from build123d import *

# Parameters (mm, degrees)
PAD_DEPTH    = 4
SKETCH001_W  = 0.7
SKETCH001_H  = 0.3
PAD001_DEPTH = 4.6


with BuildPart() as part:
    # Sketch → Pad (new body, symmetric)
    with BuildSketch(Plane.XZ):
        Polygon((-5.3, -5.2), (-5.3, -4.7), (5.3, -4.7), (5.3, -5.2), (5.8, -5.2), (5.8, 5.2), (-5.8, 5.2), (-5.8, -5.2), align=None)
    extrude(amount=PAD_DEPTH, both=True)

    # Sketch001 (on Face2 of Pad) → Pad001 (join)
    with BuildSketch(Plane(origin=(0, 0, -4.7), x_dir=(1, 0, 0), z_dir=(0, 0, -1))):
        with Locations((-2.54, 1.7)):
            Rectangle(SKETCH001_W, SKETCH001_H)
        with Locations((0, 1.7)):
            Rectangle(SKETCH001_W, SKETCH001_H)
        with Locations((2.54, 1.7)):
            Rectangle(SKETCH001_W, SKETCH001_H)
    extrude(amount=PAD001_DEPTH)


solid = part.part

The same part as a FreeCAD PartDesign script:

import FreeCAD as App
import Part
import Sketcher

V = App.Vector
Q = App.Units.Quantity

doc = App.newDocument("Part")
body = doc.addObject("PartDesign::Body", "Body")

# Sketch on XZ plane
sketch1 = body.newObject("Sketcher::SketchObject", "Sketch")
sketch1.AttachmentSupport = (doc.getObject("XZ_Plane"), [""])
sketch1.MapMode = "FlatFace"
sketch1.addGeometry(Part.LineSegment(V(-5.3, -5.2, 0), V(-5.3, -4.7, 0)), False)
sketch1.addGeometry(Part.LineSegment(V(-5.3, -4.7, 0), V(5.3, -4.7, 0)), False)
sketch1.addGeometry(Part.LineSegment(V(5.3, -4.7, 0), V(5.3, -5.2, 0)), False)
sketch1.addGeometry(Part.LineSegment(V(5.3, -5.2, 0), V(5.8, -5.2, 0)), False)
sketch1.addGeometry(Part.LineSegment(V(5.8, -5.2, 0), V(5.8, 5.2, 0)), False)
sketch1.addGeometry(Part.LineSegment(V(5.8, 5.2, 0), V(-5.8, 5.2, 0)), False)
sketch1.addGeometry(Part.LineSegment(V(-5.8, 5.2, 0), V(-5.8, -5.2, 0)), False)
sketch1.addGeometry(Part.LineSegment(V(-5.8, -5.2, 0), V(-5.3, -5.2, 0)), False)
sketch1.addConstraint(Sketcher.Constraint("Coincident", 0, 2, 1, 1))
sketch1.addConstraint(Sketcher.Constraint("Coincident", 1, 2, 2, 1))
sketch1.addConstraint(Sketcher.Constraint("Coincident", 2, 2, 3, 1))
sketch1.addConstraint(Sketcher.Constraint("Coincident", 3, 2, 4, 1))
sketch1.addConstraint(Sketcher.Constraint("Coincident", 4, 2, 5, 1))
sketch1.addConstraint(Sketcher.Constraint("Coincident", 5, 2, 6, 1))
sketch1.addConstraint(Sketcher.Constraint("Coincident", 6, 2, 7, 1))
sketch1.addConstraint(Sketcher.Constraint("Coincident", 7, 2, 0, 1))
sketch1.addConstraint(Sketcher.Constraint("Vertical", 0))
sketch1.addConstraint(Sketcher.Constraint("Horizontal", 1))
sketch1.addConstraint(Sketcher.Constraint("Vertical", 2))
sketch1.addConstraint(Sketcher.Constraint("Horizontal", 3))
sketch1.addConstraint(Sketcher.Constraint("Vertical", 4))
sketch1.addConstraint(Sketcher.Constraint("Horizontal", 5))
sketch1.addConstraint(Sketcher.Constraint("Vertical", 6))
sketch1.addConstraint(Sketcher.Constraint("Horizontal", 7))
sketch1.addConstraint(Sketcher.Constraint("Symmetric", 3, 2, 5, 2, -1, 1))
sketch1.addConstraint(Sketcher.Constraint("Symmetric", 2, 2, 7, 2, -2))
sketch1.addConstraint(Sketcher.Constraint("Equal", 7, 0))
sketch1.addConstraint(Sketcher.Constraint("DistanceX", 1, 1, 1, 2, Q("10.6 mm")))
sketch1.addConstraint(Sketcher.Constraint("DistanceX", 3, 1, 3, 2, Q("0.5 mm")))
sketch1.addConstraint(Sketcher.Constraint("DistanceY", 4, 1, 4, 2, Q("10.4 mm")))
pad1 = body.newObject("PartDesign::Pad", "Pad")
pad1.Profile = sketch1
pad1.Length = 8
pad1.Midplane = True

# Sketch on XY plane
sketch2 = body.newObject("Sketcher::SketchObject", "Sketch001")
sketch2.AttachmentSupport = (doc.getObject("XY_Plane"), [""])
sketch2.MapMode = "FlatFace"
sketch2.AttachmentOffset = App.Placement(V(0, 0, -4.7), App.Rotation())
sketch2.addGeometry(Part.LineSegment(V(-2.89, -1.85, 0), V(-2.89, -1.55, 0)), False)
sketch2.addGeometry(Part.LineSegment(V(-2.89, -1.55, 0), V(-2.19, -1.55, 0)), False)
sketch2.addGeometry(Part.LineSegment(V(-2.19, -1.55, 0), V(-2.19, -1.85, 0)), False)
sketch2.addGeometry(Part.LineSegment(V(-2.19, -1.85, 0), V(-2.89, -1.85, 0)), False)
sketch2.addGeometry(Part.LineSegment(V(-0.35, -1.85, 0), V(-0.35, -1.55, 0)), False)
sketch2.addGeometry(Part.LineSegment(V(-0.35, -1.55, 0), V(0.35, -1.55, 0)), False)
sketch2.addGeometry(Part.LineSegment(V(0.35, -1.55, 0), V(0.35, -1.85, 0)), False)
sketch2.addGeometry(Part.LineSegment(V(0.35, -1.85, 0), V(-0.35, -1.85, 0)), False)
sketch2.addGeometry(Part.LineSegment(V(2.19, -1.85, 0), V(2.19, -1.55, 0)), False)
sketch2.addGeometry(Part.LineSegment(V(2.19, -1.55, 0), V(2.89, -1.55, 0)), False)
sketch2.addGeometry(Part.LineSegment(V(2.89, -1.55, 0), V(2.89, -1.85, 0)), False)
sketch2.addGeometry(Part.LineSegment(V(2.89, -1.85, 0), V(2.19, -1.85, 0)), False)
sketch2.addConstraint(Sketcher.Constraint("Coincident", 0, 2, 1, 1))
sketch2.addConstraint(Sketcher.Constraint("Coincident", 1, 2, 2, 1))
sketch2.addConstraint(Sketcher.Constraint("Coincident", 2, 2, 3, 1))
sketch2.addConstraint(Sketcher.Constraint("Coincident", 3, 2, 0, 1))
sketch2.addConstraint(Sketcher.Constraint("Coincident", 4, 2, 5, 1))
sketch2.addConstraint(Sketcher.Constraint("Coincident", 5, 2, 6, 1))
sketch2.addConstraint(Sketcher.Constraint("Coincident", 6, 2, 7, 1))
sketch2.addConstraint(Sketcher.Constraint("Coincident", 7, 2, 4, 1))
sketch2.addConstraint(Sketcher.Constraint("Coincident", 8, 2, 9, 1))
sketch2.addConstraint(Sketcher.Constraint("Coincident", 9, 2, 10, 1))
sketch2.addConstraint(Sketcher.Constraint("Coincident", 10, 2, 11, 1))
sketch2.addConstraint(Sketcher.Constraint("Coincident", 11, 2, 8, 1))
sketch2.addConstraint(Sketcher.Constraint("Vertical", 0))
sketch2.addConstraint(Sketcher.Constraint("Horizontal", 1))
sketch2.addConstraint(Sketcher.Constraint("Vertical", 2))
sketch2.addConstraint(Sketcher.Constraint("Horizontal", 3))
sketch2.addConstraint(Sketcher.Constraint("Vertical", 4))
sketch2.addConstraint(Sketcher.Constraint("Horizontal", 5))
sketch2.addConstraint(Sketcher.Constraint("Vertical", 6))
sketch2.addConstraint(Sketcher.Constraint("Horizontal", 7))
sketch2.addConstraint(Sketcher.Constraint("Vertical", 8))
sketch2.addConstraint(Sketcher.Constraint("Horizontal", 9))
sketch2.addConstraint(Sketcher.Constraint("Vertical", 10))
sketch2.addConstraint(Sketcher.Constraint("Horizontal", 11))
sketch2.addConstraint(Sketcher.Constraint("Symmetric", 1, 2, 8, 2, -2))
sketch2.addConstraint(Sketcher.Constraint("Symmetric", 3, 2, 10, 2, -2))
sketch2.addConstraint(Sketcher.Constraint("Horizontal", 1, 2, 4, 2))
sketch2.addConstraint(Sketcher.Constraint("Horizontal", 3, 2, 6, 2))
sketch2.addConstraint(Sketcher.Constraint("Equal", 3, 5))
sketch2.addConstraint(Sketcher.Constraint("DistanceX", 1, 1, 1, 2, Q("0.7 mm")))
sketch2.addConstraint(Sketcher.Constraint("DistanceY", 0, 1, 0, 2, Q("0.3 mm")))
sketch2.addConstraint(Sketcher.Constraint("DistanceX", 0, 2, -1, 1, Q("2.89 mm")))
sketch2.addConstraint(Sketcher.Constraint("DistanceY", 0, 2, -1, 1, Q("1.55 mm")))
sketch2.addConstraint(Sketcher.Constraint("DistanceX", 4, 2, -1, 1, Q("0.35 mm")))
pad2 = body.newObject("PartDesign::Pad", "Pad001")
pad2.Profile = sketch2
pad2.Length = 4.6
pad2.Reversed = True

doc.recompute()
